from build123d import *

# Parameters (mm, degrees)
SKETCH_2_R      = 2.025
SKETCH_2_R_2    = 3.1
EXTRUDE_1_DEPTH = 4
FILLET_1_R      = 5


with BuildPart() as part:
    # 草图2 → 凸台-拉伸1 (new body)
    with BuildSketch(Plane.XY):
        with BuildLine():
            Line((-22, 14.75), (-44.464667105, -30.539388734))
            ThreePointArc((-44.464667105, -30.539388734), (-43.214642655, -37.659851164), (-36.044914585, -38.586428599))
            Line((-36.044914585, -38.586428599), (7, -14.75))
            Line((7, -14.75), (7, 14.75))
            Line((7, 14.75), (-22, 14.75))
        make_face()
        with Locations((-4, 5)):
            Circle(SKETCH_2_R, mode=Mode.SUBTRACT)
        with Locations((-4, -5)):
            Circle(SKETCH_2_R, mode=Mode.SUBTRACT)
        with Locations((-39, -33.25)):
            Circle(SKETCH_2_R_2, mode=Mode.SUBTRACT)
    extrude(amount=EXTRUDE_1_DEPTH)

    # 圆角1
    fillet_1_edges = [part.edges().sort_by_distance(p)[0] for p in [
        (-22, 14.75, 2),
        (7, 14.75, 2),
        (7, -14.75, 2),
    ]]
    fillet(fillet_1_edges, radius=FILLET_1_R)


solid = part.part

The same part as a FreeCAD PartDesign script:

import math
import FreeCAD as App
import Part
import Sketcher


def edges_at(feature, points):
    """Names of the edges that pass closest to the given points."""
    edges = feature.Shape.Edges
    near = lambda p: min(range(len(edges)), key=lambda i: edges[i].distToShape(Part.Vertex(*p))[0])
    return sorted({f"Edge{near(p) + 1}" for p in points})

doc = App.newDocument("Part")
body = doc.addObject("PartDesign::Body", "Body")

# Sketch on XY plane
sketch1 = body.newObject("Sketcher::SketchObject", "Sketch")
sketch1.AttachmentSupport = (doc.getObject("XY_Plane"), [""])
sketch1.MapMode = "FlatFace"
sketch1.addGeometry([
    Part.LineSegment(App.Vector(-22, 14.8, 0), App.Vector(-44.5, -30.5, 0)),  # 0
    Part.ArcOfCircle(Part.Circle(App.Vector(-39, -33.2, 0), App.Vector(0, 0, 1), 6.1), math.radians(154), math.radians(299)),  # 1
    Part.LineSegment(App.Vector(-36, -38.6, 0), App.Vector(7, -14.8, 0)),  # 2
    Part.LineSegment(App.Vector(7, -14.8, 0), App.Vector(7, 14.8, 0)),  # 3
    Part.LineSegment(App.Vector(7, 14.8, 0), App.Vector(-22, 14.8, 0)),  # 4
    Part.Circle(App.Vector(-39, -33.2, 0), App.Vector(0, 0, 1), 3.1),  # 5
    Part.Circle(App.Vector(-4, -5, 0), App.Vector(0, 0, 1), 2),  # 6
    Part.Circle(App.Vector(-4, 5, 0), App.Vector(0, 0, 1), 2),  # 7
], False)
sketch1.addConstraint([
    Sketcher.Constraint("Tangent", 0, 2, 1, 1),
    Sketcher.Constraint("Tangent", 1, 2, 2, 1),
    Sketcher.Constraint("Coincident", 2, 2, 3, 1),
    Sketcher.Constraint("Coincident", 3, 2, 4, 1),
    Sketcher.Constraint("Coincident", 4, 2, 0, 1),
    Sketcher.Constraint("Vertical", 3),
    Sketcher.Constraint("Horizontal", 4),
    Sketcher.Constraint("Coincident", 5, 3, 1, 3),
    Sketcher.Constraint("Equal", 6, 7),
    Sketcher.Constraint("Symmetric", 6, 3, 7, 3, -1),
    Sketcher.Constraint("Diameter", 5, 6.2),
    Sketcher.Constraint("Radius", 1, 6.1),
    Sketcher.Constraint("Diameter", 6, 4.05),
    Sketcher.Constraint("DistanceX", 4, 2, 4, 1, 29.0),
    Sketcher.Constraint("DistanceY", 3, 1, 3, 2, 29.5),
    Sketcher.Constraint("DistanceX", 1, 3, -1, 1, 39.0),
    Sketcher.Constraint("DistanceX", 6, 3, -1, 1, 4.0),
    Sketcher.Constraint("DistanceY", 6, 3, -1, 1, 5.0),
    Sketcher.Constraint("DistanceX", -1, 1, 2, 2, 7.0),
    Sketcher.Constraint("DistanceY", 1, 3, 3, 2, 48.0),
    Sketcher.Constraint("DistanceY", 1, 3, -1, 1, 33.25),
])
pad1 = body.newObject("PartDesign::Pad", "Pad")
pad1.Profile = sketch1
pad1.Length = 4
doc.recompute()

fillet = body.newObject("PartDesign::Fillet", "Fillet")
fillet.Base = (pad1, edges_at(pad1, [(-22, 14.75, 2), (7, 14.75, 2), (7, -14.75, 2)]))
fillet.Radius = 5

doc.recompute()
